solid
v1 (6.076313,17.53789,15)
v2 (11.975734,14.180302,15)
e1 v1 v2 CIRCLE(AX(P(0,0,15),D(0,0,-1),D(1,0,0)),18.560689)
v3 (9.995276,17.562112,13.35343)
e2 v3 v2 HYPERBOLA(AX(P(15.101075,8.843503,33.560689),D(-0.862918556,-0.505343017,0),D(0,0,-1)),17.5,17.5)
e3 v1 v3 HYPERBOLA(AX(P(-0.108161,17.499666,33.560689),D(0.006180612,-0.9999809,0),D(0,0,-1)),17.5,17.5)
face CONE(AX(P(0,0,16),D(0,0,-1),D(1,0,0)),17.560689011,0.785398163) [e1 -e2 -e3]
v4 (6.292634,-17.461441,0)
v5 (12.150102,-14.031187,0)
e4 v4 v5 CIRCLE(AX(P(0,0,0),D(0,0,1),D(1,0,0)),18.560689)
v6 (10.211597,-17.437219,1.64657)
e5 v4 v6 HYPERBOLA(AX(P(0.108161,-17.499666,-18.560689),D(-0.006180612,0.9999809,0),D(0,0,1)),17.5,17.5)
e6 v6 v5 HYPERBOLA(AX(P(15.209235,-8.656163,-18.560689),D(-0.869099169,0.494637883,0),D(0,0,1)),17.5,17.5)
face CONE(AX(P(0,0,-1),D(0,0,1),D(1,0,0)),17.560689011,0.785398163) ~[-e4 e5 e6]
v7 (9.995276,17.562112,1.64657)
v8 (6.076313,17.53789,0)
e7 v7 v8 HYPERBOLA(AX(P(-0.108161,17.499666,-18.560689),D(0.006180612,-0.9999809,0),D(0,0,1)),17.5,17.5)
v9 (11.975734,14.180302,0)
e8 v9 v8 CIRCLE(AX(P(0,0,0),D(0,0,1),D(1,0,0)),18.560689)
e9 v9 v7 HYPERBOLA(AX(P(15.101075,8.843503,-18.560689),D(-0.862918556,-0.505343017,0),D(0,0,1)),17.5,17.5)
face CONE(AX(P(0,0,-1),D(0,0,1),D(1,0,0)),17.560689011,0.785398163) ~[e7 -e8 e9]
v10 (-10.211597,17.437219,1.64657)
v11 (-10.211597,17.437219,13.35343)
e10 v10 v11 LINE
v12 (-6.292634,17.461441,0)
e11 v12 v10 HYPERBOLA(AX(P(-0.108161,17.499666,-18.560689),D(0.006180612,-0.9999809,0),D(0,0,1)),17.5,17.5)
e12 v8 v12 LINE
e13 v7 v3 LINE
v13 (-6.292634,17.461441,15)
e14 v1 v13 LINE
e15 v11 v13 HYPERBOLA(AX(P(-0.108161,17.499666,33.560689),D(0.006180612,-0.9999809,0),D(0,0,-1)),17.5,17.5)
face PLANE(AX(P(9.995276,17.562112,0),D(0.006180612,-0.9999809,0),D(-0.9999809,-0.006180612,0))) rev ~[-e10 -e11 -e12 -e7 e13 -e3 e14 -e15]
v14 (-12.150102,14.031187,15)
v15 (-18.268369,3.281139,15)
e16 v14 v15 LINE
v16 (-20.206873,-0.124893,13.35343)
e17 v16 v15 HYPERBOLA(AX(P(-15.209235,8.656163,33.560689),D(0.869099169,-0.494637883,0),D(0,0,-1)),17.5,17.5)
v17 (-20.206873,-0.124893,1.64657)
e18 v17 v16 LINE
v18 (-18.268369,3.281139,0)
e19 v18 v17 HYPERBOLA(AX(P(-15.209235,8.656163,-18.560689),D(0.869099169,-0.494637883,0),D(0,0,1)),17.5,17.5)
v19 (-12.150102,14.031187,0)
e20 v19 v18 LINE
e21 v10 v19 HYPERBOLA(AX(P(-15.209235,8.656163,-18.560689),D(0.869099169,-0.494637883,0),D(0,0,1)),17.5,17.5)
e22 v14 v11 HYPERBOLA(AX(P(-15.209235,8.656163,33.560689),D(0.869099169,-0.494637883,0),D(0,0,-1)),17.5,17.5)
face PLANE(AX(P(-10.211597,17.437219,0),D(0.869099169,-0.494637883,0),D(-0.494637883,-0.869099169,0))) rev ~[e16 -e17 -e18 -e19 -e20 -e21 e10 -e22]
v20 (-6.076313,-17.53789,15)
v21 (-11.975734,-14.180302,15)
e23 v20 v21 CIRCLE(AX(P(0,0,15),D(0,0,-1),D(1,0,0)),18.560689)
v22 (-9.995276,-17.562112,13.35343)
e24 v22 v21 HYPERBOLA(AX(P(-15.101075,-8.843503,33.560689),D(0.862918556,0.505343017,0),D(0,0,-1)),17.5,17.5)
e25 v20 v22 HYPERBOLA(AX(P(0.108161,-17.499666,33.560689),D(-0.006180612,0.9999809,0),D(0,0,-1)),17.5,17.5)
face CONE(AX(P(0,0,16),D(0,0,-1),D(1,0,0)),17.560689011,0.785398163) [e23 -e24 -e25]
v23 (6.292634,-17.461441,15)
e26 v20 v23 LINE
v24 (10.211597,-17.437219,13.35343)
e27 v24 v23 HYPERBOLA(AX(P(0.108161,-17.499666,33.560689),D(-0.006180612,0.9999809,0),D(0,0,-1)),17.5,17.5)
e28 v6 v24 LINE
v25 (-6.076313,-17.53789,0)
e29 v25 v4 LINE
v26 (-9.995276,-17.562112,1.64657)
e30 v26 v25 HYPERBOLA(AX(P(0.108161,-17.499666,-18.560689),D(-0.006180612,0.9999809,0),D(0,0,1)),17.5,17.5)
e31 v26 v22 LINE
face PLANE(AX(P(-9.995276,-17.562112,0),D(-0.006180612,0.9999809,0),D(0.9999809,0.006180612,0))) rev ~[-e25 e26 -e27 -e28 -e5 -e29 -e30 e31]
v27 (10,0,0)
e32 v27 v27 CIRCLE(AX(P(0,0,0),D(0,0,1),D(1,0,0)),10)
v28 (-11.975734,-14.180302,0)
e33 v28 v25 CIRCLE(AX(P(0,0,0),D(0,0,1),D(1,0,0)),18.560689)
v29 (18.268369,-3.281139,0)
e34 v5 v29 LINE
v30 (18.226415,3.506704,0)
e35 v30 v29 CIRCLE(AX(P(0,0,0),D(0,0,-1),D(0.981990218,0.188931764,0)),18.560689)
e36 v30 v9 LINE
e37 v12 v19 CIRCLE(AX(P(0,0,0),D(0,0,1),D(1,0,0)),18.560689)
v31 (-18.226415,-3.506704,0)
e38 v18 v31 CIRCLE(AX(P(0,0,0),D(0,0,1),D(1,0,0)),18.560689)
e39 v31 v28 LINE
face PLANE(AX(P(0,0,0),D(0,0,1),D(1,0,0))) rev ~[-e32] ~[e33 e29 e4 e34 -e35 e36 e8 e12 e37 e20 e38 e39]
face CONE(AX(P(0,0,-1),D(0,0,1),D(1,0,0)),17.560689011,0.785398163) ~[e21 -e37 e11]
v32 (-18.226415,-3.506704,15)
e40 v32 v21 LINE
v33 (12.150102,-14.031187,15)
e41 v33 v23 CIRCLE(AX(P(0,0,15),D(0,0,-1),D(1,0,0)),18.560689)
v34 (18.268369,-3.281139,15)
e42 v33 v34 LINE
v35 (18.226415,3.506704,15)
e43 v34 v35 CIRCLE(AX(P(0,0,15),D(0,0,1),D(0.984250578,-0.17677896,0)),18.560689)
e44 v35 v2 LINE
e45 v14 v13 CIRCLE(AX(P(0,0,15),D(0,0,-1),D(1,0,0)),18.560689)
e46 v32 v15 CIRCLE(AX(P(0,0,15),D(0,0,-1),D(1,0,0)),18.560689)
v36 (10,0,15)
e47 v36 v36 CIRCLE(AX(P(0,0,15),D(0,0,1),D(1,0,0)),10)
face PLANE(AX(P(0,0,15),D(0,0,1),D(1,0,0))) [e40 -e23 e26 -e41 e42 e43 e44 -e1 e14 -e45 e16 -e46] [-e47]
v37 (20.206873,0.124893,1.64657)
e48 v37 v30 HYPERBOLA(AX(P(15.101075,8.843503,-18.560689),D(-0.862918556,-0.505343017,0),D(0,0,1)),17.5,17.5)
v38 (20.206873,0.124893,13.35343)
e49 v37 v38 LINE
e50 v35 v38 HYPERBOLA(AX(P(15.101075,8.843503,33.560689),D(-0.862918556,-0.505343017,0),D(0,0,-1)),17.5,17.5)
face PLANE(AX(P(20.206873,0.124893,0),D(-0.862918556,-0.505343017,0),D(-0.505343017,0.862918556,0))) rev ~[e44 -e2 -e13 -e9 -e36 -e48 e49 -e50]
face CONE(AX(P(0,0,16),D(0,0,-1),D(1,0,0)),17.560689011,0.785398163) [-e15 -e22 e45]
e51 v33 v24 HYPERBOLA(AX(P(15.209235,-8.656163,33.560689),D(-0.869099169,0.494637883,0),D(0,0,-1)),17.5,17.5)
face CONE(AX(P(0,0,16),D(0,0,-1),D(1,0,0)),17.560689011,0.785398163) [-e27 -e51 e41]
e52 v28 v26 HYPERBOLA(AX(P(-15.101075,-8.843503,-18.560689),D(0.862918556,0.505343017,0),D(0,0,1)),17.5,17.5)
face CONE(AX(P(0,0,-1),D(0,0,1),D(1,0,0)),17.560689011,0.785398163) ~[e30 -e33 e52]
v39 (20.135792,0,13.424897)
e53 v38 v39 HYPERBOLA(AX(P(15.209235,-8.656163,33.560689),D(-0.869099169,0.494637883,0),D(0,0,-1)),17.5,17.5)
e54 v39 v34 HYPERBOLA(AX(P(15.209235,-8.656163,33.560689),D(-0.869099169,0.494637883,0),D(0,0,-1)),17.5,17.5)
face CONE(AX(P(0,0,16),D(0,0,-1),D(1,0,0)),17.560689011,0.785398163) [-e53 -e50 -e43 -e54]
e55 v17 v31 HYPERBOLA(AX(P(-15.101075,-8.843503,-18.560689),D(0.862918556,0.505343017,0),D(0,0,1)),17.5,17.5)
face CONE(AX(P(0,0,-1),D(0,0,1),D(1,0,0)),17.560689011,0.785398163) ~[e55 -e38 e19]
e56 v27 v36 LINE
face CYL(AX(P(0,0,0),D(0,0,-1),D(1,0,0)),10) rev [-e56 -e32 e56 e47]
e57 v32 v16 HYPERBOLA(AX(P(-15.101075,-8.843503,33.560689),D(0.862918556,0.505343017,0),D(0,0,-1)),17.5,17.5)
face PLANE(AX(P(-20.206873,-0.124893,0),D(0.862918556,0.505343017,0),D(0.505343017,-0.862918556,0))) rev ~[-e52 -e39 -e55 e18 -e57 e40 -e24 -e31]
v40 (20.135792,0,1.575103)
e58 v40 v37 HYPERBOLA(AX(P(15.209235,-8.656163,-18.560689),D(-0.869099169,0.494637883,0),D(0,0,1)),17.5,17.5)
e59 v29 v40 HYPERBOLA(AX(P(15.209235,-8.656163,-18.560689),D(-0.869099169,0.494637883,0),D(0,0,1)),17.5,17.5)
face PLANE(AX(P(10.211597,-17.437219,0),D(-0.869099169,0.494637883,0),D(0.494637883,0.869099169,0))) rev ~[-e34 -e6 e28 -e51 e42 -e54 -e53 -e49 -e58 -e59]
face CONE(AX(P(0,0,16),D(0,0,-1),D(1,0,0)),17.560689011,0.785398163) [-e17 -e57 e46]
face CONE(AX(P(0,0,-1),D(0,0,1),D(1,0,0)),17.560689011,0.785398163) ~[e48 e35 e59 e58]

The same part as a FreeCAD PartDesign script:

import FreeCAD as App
import Part
import Sketcher

V = App.Vector

doc = App.newDocument("Part")
body = doc.addObject("PartDesign::Body", "Body")

# Sketch on XY plane
sketch1 = doc.addObject("Sketcher::SketchObject", "Sketch")
body.addObject(sketch1)
sketch1.AttachmentSupport = (doc.XY_Plane, [""])
sketch1.MapMode = "FlatFace"
sketch1.addGeometry([
    Part.LineSegment(V(10, 18, 0), V(-10, 17, 0)),  # 0
    Part.LineSegment(V(-10, 17, 0), V(-20, 0, 0)),  # 1
    Part.LineSegment(V(-20, 0, 0), V(-10, -18, 0)),  # 2
    Part.LineSegment(V(-10, -18, 0), V(10, -17, 0)),  # 3
    Part.LineSegment(V(10, -17, 0), V(20, 0, 0)),  # 4
    Part.LineSegment(V(20, 0, 0), V(10, 18, 0)),  # 5
    Part.Circle(V(0, 0, 0), V(0, 0, 1), 10),  # 6
], False)
sketch1.addConstraint([
    Sketcher.Constraint("Coincident", 0, 2, 1, 1),
    Sketcher.Constraint("Coincident", 1, 2, 2, 1),
    Sketcher.Constraint("Coincident", 2, 2, 3, 1),
    Sketcher.Constraint("Coincident", 3, 2, 4, 1),
    Sketcher.Constraint("Coincident", 4, 2, 5, 1),
    Sketcher.Constraint("Coincident", 5, 2, 0, 1),
    Sketcher.Constraint("Coincident", 6, 3, -1, 1),
    Sketcher.Constraint("Symmetric", 0, 2, 3, 2, -1, 1),
    Sketcher.Constraint("Symmetric", 1, 2, 4, 2, -1, 1),
    Sketcher.Constraint("Symmetric", 2, 2, 5, 2, -1, 1),
    Sketcher.Constraint("Equal", 0, 1),
    Sketcher.Constraint("Equal", 1, 2),
    Sketcher.Constraint("Diameter", 6, 20.0),
    Sketcher.Constraint("Distance", 0, 20.207259),
    Sketcher.Constraint("DistanceY", -1, 1, 0, 2, 17.437219),
    Sketcher.Constraint("DistanceY", 2, 2, 1, 2, 17.437219),
    Sketcher.Constraint("DistanceX", 0, 2, 2, 2, 0.216321),
])
pad1 = doc.addObject("PartDesign::Pad", "Pad")
body.addObject(pad1)
pad1.Profile = sketch1
pad1.Length = 15

# Sketch on XZ plane
sketch2 = doc.addObject("Sketcher::SketchObject", "Sketch001")
body.addObject(sketch2)
sketch2.AttachmentSupport = (doc.XZ_Plane, [""])
sketch2.MapMode = "FlatFace"
sketch2.addGeometry([
    Part.LineSegment(V(17.6, -1, 0), V(21.2, 2.6, 0)),  # 0
    Part.LineSegment(V(21.2, 2.6, 0), V(21.2, -1, 0)),  # 1
    Part.LineSegment(V(21.2, -1, 0), V(17.6, -1, 0)),  # 2
    Part.LineSegment(V(17.6, 16, 0), V(21.2, 16, 0)),  # 3
    Part.LineSegment(V(21.2, 16, 0), V(21.2, 12.4, 0)),  # 4
    Part.LineSegment(V(21.2, 12.4, 0), V(17.6, 16, 0)),  # 5
], False)
sketch2.addConstraint([
    Sketcher.Constraint("Coincident", 0, 2, 1, 1),
    Sketcher.Constraint("Coincident", 1, 2, 2, 1),
    Sketcher.Constraint("Coincident", 2, 2, 0, 1),
    Sketcher.Constraint("Coincident", 3, 2, 4, 1),
    Sketcher.Constraint("Coincident", 4, 2, 5, 1),
    Sketcher.Constraint("Coincident", 5, 2, 3, 1),
    Sketcher.Constraint("Vertical", 1),
    Sketcher.Constraint("Horizontal", 2),
    Sketcher.Constraint("Horizontal", 3),
    Sketcher.Constraint("Vertical", 4),
    Sketcher.Constraint("Perpendicular", 0, 5),
    Sketcher.Constraint("Vertical", 1, 2, 3, 2),
    Sketcher.Constraint("Vertical", 2, 2, 5, 2),
    Sketcher.Constraint("Equal", 3, 1),
    Sketcher.Constraint("DistanceY", 1, 2, -1, 1, 1.0),
    Sketcher.Constraint("DistanceY", -1, 1, 3, 2, 16.0),
    Sketcher.Constraint("DistanceX", 2, 2, 2, 1, 3.646184),
    Sketcher.Constraint("DistanceX", -1, 1, 2, 2, 17.560689),
])
groove = doc.addObject("PartDesign::Groove", "Groove")
body.addObject(groove)
groove.Profile = sketch2
groove.ReferenceAxis = (sketch2, ["V_Axis"])
groove.Angle = 360

doc.recompute()
